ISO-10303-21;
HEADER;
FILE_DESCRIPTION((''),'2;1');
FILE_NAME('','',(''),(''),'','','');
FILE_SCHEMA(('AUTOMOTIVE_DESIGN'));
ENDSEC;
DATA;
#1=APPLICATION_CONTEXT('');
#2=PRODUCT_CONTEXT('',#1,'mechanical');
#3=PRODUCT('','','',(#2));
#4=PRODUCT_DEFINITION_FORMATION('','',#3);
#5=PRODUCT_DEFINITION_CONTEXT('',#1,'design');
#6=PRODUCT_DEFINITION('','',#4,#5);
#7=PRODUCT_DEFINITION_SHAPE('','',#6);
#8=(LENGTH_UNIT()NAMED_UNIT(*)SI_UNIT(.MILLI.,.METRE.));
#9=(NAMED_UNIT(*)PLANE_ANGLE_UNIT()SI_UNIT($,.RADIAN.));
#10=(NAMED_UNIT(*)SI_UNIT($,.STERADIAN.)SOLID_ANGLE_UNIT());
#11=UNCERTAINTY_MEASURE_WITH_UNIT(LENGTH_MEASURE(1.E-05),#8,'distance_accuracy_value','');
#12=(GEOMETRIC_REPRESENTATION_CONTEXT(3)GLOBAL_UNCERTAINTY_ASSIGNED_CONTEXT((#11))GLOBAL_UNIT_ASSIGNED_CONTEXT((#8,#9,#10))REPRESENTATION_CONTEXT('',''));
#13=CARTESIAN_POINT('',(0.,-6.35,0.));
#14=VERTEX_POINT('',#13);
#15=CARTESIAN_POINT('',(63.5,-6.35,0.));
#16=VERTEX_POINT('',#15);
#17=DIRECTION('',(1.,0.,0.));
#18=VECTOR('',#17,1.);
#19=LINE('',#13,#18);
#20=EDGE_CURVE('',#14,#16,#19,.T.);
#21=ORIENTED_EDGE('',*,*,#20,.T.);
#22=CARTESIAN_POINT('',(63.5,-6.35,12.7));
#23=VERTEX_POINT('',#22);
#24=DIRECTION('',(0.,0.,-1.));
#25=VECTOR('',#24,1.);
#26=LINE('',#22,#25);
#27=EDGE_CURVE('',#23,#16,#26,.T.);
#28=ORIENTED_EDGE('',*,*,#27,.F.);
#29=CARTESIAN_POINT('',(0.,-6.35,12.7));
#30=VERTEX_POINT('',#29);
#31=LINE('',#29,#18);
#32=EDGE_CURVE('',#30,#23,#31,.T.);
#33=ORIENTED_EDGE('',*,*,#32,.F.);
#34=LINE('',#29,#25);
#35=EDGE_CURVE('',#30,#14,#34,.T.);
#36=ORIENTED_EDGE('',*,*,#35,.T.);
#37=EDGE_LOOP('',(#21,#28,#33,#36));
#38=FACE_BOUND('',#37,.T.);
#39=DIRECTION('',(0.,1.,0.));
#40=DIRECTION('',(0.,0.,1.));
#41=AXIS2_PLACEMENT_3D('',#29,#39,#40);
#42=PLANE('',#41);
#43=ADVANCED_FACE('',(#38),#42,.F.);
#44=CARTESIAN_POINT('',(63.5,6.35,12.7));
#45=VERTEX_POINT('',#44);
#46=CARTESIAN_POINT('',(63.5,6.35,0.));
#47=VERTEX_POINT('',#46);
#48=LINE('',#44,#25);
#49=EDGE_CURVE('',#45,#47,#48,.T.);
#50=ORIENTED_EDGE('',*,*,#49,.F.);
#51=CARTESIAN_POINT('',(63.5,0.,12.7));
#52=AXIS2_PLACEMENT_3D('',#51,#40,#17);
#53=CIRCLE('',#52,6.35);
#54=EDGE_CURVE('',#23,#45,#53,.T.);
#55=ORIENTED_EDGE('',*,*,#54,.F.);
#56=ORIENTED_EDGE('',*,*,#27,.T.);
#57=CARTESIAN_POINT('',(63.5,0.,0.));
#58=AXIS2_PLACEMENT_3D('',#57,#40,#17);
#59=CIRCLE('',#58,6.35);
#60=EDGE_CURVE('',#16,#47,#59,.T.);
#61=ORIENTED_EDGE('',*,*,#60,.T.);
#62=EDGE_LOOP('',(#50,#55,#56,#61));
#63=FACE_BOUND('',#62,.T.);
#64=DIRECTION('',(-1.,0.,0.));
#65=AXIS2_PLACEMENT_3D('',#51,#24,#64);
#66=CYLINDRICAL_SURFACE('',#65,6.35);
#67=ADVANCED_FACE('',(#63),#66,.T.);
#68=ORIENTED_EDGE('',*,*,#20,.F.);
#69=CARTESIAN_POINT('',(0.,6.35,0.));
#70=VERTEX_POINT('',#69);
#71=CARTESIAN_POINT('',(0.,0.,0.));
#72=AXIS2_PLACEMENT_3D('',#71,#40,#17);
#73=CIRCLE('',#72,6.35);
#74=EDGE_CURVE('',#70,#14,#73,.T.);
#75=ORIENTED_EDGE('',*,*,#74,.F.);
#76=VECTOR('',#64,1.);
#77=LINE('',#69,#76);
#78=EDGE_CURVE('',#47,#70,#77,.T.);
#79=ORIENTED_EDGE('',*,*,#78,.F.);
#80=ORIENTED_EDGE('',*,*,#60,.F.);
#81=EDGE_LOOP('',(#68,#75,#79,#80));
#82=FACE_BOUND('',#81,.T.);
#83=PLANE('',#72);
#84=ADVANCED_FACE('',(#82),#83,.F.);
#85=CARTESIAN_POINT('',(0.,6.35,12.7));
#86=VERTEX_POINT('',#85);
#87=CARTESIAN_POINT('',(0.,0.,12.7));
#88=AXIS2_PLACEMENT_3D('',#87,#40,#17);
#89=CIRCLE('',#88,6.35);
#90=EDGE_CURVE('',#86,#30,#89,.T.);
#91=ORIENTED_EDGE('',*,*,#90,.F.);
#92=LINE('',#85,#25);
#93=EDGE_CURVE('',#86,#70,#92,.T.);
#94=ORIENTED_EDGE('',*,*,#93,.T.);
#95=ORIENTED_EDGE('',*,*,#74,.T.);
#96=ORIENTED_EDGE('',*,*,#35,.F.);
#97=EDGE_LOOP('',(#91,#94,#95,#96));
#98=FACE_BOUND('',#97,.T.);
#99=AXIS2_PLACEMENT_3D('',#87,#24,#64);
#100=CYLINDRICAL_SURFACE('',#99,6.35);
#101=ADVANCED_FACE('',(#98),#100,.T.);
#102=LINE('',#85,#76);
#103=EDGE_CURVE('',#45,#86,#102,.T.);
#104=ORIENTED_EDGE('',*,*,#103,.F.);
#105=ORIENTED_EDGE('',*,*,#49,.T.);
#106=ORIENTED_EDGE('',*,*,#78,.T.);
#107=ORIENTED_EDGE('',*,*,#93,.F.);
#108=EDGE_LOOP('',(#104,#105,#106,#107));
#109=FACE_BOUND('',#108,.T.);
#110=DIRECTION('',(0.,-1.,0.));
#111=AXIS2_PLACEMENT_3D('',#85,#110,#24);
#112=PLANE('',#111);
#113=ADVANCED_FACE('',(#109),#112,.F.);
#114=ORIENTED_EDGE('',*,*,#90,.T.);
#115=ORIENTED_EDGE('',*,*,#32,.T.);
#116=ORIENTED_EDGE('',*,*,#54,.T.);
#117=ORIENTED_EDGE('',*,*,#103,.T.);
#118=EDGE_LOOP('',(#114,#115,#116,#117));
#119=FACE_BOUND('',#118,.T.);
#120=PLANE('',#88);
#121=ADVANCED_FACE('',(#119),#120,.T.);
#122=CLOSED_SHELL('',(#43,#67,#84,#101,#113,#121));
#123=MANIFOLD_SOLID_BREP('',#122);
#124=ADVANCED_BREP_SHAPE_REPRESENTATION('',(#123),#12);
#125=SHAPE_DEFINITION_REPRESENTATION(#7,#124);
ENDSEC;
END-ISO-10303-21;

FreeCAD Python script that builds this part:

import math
import FreeCAD as App
import Part
import Sketcher
Q = App.Units.Quantity

doc = App.newDocument("Part")
params = doc.addObject("Spreadsheet::Sheet", "Params")
for row, (alias, value) in enumerate([
    ("sketch1_radius", "0.25 in"),
    ("sketch1_width", "2.5 in"),
    ("pad1_length", "0.5 in"),
], start=1):
    params.set(f"A{row}", alias)
    params.set(f"B{row}", "=" + value)
    params.setAlias(f"B{row}", alias)

body = doc.addObject("PartDesign::Body", "Body")

sketch1 = body.newObject("Sketcher::SketchObject", "Sketch")
sketch1.AttachmentSupport = (doc.getObject("XY_Plane"), [""])
sketch1.MapMode = "FlatFace"
sketch1.addGeometry([
    Part.LineSegment(App.Vector(63.5, 6.35, 0), App.Vector(0, 6.35, 0)),
    Part.ArcOfCircle(Part.Circle(App.Vector(0, 0, 0), App.Vector(0, 0, 1), 6.35), math.radians(90), math.radians(270)),
    Part.LineSegment(App.Vector(0, -6.35, 0), App.Vector(63.5, -6.35, 0)),
    Part.ArcOfCircle(Part.Circle(App.Vector(63.5, 0, 0), App.Vector(0, 0, 1), 6.35), math.radians(-90), math.radians(90)),
], False)
sketch1.addConstraint([
    Sketcher.Constraint("Tangent", 0, 2, 1, 1),
    Sketcher.Constraint("Tangent", 1, 2, 2, 1),
    Sketcher.Constraint("Tangent", 2, 2, 3, 1),
    Sketcher.Constraint("Tangent", 3, 2, 0, 1),
    Sketcher.Constraint("Horizontal", 0),
    Sketcher.Constraint("Horizontal", 2),
    Sketcher.Constraint("Coincident", 1, 3, -1, 1),
    Sketcher.Constraint("Radius", 1, Q("0.25 in")),
    Sketcher.Constraint("DistanceX", 0, 2, 0, 1, Q("2.5 in")),
])
sketch1.setExpression("Constraints[7]", "Params.sketch1_radius")
sketch1.setExpression("Constraints[8]", "Params.sketch1_width")
pad1 = body.newObject("PartDesign::Pad", "Pad")
pad1.Profile = sketch1
pad1.setExpression("Length", "Params.pad1_length")

doc.recompute()
